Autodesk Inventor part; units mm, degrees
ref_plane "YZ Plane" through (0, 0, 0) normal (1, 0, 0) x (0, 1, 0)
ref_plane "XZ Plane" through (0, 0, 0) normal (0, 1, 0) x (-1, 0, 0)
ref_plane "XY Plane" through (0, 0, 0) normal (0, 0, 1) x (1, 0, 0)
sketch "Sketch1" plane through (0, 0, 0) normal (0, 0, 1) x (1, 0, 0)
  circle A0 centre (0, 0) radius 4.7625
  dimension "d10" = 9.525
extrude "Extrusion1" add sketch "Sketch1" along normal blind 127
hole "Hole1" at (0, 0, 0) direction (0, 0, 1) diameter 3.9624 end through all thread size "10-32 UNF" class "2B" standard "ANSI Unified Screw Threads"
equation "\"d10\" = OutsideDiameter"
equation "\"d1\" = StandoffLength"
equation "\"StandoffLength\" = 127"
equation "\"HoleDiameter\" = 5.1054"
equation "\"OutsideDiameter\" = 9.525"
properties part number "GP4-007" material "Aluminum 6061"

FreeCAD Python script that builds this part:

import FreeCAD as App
import Part
import Sketcher
from FreeCAD import Vector
Q = App.Units.Quantity

doc = App.newDocument("Part")
body = doc.addObject("PartDesign::Body", "Body")

sketch1 = doc.addObject("Sketcher::SketchObject", "Sketch")
body.addObject(sketch1)
sketch1.AttachmentSupport = (doc.XY_Plane, [""])
sketch1.MapMode = "FlatFace"
sketch1.addGeometry(Part.Circle(Vector(0, 0, 0), Vector(0, 0, 1), 4.8), False)
sketch1.addConstraint([
    Sketcher.Constraint("Coincident", 0, 3, -1, 1),
    Sketcher.Constraint("Diameter", 0, Q("0.375 in")),
])
pad1 = doc.addObject("PartDesign::Pad", "Pad")
body.addObject(pad1)
pad1.Profile = sketch1
pad1.Length = Q("5 in")

sketch2 = doc.addObject("Sketcher::SketchObject", "Sketch001")
body.addObject(sketch2)
sketch2.AttachmentSupport = (doc.XY_Plane, [""])
sketch2.MapMode = "FlatFace"
sketch2.addGeometry(Part.Circle(Vector(0, 0, 0), Vector(0, 0, 1), 2), False)
sketch2.addConstraint([
    Sketcher.Constraint("Coincident", 0, 3, -1, 1),
    Sketcher.Constraint("Diameter", 0, Q("0.156 in")),
])
doc.recompute()
hole = doc.addObject("PartDesign::Hole", "Hole")
body.addObject(hole)
hole.Profile = sketch2
hole.ThreadType = "None"
hole.Diameter = Q("0.156 in")
hole.DepthType = "ThroughAll"
hole.Reversed = True

doc.recompute()
